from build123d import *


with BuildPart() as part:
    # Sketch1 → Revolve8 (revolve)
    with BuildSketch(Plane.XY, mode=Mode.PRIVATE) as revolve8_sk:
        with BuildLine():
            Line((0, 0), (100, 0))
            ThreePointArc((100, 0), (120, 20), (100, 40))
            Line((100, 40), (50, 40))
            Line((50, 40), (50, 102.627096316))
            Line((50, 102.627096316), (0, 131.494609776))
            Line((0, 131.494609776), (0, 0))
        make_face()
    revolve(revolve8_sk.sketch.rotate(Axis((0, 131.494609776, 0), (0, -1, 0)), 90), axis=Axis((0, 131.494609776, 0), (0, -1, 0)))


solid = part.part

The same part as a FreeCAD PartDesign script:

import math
import FreeCAD as App
import Part
import Sketcher
from FreeCAD import Vector
Q = App.Units.Quantity

doc = App.newDocument("Part")
body = doc.addObject("PartDesign::Body", "Body")

sketch1 = body.newObject("Sketcher::SketchObject", "Sketch")
sketch1.AttachmentSupport = (doc.getObject("XY_Plane"), [""])
sketch1.MapMode = "FlatFace"
sketch1.addGeometry(Part.LineSegment(Vector(0, 0, 0), Vector(100, 0, 0)), False)
sketch1.addGeometry(Part.ArcOfCircle(Part.Circle(Vector(100, 20, 0), Vector(0, 0, 1), 20), math.radians(-90), math.radians(90)), False)
sketch1.addGeometry(Part.LineSegment(Vector(100, 40, 0), Vector(50, 40, 0)), False)
sketch1.addGeometry(Part.LineSegment(Vector(50, 40, 0), Vector(50, 103, 0)), False)
sketch1.addGeometry(Part.LineSegment(Vector(50, 103, 0), Vector(0, 131, 0)), False)
sketch1.addGeometry(Part.LineSegment(Vector(0, 131, 0), Vector(0, 0, 0)), False)
sketch1.addConstraint(Sketcher.Constraint("Tangent", 0, 2, 1, 1))
sketch1.addConstraint(Sketcher.Constraint("Tangent", 1, 2, 2, 1))
sketch1.addConstraint(Sketcher.Constraint("Coincident", 2, 2, 3, 1))
sketch1.addConstraint(Sketcher.Constraint("Coincident", 3, 2, 4, 1))
sketch1.addConstraint(Sketcher.Constraint("Coincident", 4, 2, 5, 1))
sketch1.addConstraint(Sketcher.Constraint("Coincident", 5, 2, 0, 1))
sketch1.addConstraint(Sketcher.Constraint("Horizontal", 0))
sketch1.addConstraint(Sketcher.Constraint("Horizontal", 2))
sketch1.addConstraint(Sketcher.Constraint("Vertical", 3))
sketch1.addConstraint(Sketcher.Constraint("Vertical", 5))
sketch1.addConstraint(Sketcher.Constraint("Coincident", 5, 2, -1, 1))
sketch1.addConstraint(Sketcher.Constraint("Radius", 1, 20.0))
sketch1.addConstraint(Sketcher.Constraint("DistanceX", 0, 1, 0, 2, 100.0))
sketch1.addConstraint(Sketcher.Constraint("DistanceX", 2, 2, 2, 1, 50.0))
sketch1.addConstraint(Sketcher.Constraint("Angle", 4, Q("150 deg")))
sketch1.addConstraint(Sketcher.Constraint("DistanceY", 5, 2, 5, 1, 131.49461))
revolution = body.newObject("PartDesign::Revolution", "Revolution")
revolution.Profile = sketch1
revolution.ReferenceAxis = (sketch1, ["V_Axis"])
revolution.Angle = 360

doc.recompute()
